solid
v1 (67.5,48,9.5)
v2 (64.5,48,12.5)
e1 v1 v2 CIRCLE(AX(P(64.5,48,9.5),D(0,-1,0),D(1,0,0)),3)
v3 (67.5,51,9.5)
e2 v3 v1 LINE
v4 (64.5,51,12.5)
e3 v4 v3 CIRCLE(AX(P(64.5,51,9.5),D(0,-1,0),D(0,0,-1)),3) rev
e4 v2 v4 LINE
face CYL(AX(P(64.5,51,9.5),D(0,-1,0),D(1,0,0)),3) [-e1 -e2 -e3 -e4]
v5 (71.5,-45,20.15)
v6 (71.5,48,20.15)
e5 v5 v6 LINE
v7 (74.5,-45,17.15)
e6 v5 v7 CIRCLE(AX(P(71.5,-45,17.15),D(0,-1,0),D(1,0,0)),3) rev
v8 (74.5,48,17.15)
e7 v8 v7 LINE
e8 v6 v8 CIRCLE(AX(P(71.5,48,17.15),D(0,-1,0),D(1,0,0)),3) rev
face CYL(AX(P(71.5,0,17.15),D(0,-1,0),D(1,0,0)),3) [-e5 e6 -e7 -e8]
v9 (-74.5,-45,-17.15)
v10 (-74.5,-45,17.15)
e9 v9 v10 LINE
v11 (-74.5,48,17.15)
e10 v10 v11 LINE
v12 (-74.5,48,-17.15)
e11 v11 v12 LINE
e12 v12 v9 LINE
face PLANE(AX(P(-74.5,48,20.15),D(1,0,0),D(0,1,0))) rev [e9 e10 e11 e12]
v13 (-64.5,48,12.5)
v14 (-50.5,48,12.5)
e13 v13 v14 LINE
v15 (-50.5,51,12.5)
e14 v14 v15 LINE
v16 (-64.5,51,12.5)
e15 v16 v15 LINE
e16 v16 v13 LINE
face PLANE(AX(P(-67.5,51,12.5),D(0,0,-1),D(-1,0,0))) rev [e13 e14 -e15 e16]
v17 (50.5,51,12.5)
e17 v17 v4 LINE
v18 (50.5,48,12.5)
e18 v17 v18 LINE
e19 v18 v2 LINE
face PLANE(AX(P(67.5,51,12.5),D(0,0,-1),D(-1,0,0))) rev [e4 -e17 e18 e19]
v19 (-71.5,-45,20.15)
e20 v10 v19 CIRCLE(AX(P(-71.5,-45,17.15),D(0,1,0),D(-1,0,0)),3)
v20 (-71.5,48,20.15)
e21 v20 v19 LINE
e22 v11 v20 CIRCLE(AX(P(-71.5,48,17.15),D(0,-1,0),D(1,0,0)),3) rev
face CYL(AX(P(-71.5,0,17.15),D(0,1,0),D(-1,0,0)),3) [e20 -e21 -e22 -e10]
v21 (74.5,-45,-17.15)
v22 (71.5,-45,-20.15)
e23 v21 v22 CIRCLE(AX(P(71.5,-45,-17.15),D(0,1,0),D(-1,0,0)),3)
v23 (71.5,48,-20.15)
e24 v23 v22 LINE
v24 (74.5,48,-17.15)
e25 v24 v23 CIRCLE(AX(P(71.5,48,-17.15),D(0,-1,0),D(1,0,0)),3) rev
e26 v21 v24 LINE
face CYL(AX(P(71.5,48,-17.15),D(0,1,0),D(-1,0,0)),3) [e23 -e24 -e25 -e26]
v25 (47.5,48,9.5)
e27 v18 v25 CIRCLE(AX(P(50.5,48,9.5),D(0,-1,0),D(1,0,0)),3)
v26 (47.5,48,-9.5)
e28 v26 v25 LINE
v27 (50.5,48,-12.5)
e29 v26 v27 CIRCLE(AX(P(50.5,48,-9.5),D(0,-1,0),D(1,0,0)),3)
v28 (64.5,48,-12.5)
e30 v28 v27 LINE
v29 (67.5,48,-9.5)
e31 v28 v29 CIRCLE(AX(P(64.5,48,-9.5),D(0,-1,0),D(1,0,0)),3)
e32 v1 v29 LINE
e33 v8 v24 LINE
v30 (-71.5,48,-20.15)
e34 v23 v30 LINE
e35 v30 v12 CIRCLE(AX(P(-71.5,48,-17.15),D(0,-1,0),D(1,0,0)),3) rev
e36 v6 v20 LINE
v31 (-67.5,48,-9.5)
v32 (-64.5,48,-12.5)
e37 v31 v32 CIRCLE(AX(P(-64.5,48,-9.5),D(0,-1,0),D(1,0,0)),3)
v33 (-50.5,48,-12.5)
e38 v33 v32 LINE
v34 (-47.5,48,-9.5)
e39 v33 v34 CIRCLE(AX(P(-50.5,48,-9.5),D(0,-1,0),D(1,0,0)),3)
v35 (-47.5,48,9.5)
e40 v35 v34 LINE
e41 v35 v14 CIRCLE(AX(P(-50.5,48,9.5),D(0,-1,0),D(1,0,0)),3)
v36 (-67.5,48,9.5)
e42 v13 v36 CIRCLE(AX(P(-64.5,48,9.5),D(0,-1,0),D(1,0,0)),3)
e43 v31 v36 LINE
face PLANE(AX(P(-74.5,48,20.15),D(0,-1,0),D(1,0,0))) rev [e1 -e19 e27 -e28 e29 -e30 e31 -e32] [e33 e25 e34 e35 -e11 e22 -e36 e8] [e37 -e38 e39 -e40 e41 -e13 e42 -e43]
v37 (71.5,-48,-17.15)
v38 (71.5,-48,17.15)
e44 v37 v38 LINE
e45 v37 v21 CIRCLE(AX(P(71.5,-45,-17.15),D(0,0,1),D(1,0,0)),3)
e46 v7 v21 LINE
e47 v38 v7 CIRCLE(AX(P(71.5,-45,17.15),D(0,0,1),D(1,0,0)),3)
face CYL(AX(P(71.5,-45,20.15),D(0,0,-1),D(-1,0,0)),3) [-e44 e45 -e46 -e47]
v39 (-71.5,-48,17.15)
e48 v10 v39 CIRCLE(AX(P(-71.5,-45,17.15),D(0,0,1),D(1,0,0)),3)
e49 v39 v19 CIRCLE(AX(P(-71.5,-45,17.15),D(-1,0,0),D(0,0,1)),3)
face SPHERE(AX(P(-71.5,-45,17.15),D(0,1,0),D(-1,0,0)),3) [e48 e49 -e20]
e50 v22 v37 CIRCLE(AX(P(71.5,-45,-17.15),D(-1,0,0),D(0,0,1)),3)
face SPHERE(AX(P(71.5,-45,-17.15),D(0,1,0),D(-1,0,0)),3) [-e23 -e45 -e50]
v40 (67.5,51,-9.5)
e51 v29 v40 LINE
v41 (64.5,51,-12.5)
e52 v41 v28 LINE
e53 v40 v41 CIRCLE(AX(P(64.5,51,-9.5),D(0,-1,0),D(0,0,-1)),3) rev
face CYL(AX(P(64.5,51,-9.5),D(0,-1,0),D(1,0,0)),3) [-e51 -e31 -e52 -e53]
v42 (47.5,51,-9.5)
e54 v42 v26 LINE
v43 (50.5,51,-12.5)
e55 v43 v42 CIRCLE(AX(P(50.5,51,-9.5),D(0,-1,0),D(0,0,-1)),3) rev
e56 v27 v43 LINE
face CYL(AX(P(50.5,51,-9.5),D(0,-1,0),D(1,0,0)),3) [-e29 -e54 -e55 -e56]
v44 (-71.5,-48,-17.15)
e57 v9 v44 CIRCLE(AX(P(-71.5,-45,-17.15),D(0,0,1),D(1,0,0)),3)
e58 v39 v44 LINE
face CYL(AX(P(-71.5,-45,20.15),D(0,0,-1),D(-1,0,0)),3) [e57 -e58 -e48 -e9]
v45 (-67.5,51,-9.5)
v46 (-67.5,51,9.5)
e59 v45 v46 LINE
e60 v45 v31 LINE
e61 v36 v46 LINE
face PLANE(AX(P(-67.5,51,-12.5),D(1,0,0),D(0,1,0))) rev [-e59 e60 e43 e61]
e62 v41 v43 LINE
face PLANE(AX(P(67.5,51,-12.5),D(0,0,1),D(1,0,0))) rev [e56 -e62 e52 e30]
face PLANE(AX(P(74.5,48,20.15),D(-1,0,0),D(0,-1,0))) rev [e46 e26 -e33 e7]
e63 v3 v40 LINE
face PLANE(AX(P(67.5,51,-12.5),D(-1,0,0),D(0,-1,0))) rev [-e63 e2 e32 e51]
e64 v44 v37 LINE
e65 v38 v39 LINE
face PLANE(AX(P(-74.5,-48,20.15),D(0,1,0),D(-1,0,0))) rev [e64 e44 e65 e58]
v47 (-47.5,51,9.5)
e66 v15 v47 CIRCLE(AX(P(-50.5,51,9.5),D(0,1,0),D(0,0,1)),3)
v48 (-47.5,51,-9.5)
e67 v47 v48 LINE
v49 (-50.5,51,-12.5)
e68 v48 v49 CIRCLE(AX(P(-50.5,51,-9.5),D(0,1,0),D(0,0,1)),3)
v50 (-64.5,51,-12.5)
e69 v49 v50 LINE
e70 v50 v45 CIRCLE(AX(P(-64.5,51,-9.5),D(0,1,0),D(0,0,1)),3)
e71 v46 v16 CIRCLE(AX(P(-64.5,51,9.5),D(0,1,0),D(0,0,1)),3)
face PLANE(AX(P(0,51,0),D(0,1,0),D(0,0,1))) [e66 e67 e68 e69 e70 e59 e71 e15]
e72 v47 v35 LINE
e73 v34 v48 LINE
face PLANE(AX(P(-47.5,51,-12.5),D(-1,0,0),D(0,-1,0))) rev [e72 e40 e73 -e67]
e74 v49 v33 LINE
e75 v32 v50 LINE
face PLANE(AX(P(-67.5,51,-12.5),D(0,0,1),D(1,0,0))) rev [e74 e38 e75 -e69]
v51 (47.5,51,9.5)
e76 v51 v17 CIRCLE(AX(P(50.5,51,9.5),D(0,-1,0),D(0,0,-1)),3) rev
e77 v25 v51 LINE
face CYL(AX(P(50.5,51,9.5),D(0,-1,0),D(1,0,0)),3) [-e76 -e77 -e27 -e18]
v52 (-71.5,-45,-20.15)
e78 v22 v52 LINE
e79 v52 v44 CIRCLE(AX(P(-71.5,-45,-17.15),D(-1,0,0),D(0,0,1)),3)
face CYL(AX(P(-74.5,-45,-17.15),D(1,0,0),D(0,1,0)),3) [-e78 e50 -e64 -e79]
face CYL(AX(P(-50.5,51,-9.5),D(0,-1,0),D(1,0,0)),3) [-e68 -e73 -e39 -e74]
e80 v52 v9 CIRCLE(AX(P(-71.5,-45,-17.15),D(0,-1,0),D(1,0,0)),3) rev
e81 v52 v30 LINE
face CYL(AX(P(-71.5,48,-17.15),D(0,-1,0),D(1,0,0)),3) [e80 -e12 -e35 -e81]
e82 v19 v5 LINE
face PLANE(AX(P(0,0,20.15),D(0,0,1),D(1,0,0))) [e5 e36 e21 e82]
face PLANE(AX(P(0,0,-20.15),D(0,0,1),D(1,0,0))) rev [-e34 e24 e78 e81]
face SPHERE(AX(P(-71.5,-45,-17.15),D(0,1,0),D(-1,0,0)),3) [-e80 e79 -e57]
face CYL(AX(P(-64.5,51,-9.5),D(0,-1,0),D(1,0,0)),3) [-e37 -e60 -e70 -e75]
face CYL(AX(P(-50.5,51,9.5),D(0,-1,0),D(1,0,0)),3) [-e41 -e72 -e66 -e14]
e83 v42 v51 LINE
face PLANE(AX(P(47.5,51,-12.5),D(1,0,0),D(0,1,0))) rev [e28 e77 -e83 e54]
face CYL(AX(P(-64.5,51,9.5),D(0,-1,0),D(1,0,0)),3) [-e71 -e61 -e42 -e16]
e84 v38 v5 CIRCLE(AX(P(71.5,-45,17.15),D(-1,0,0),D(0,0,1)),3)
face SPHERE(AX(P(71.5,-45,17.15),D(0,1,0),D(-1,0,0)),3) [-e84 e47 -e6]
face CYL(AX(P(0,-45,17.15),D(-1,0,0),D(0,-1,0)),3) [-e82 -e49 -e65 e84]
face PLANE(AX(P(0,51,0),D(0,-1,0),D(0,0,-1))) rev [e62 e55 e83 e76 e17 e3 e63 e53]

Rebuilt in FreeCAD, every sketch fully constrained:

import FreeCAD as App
import Part
import Sketcher
from FreeCAD import Vector


def edges_at(feature, points):
    """Names of the edges that pass closest to the given points."""
    edges = feature.Shape.Edges
    near = lambda p: min(range(len(edges)), key=lambda i: edges[i].distToShape(Part.Vertex(*p))[0])
    return sorted({f"Edge{near(p) + 1}" for p in points})


def add_polygon(sketch, points):
    """Adds a closed chain of lines whose ends are joined by coincident constraints."""
    first, n = sketch.GeometryCount, len(points)
    for a, b in zip(points, points[1:] + points[:1]):
        sketch.addGeometry(Part.LineSegment(App.Vector(*a, 0), App.Vector(*b, 0)), False)
    for i in range(n):
        sketch.addConstraint(Sketcher.Constraint("Coincident", first + i, 2, first + (i + 1) % n, 1))

doc = App.newDocument("Part")
body = doc.addObject("PartDesign::Body", "Body")

# Sketch on XY plane
sketch1 = doc.addObject("Sketcher::SketchObject", "Sketch")
body.addObject(sketch1)
sketch1.AttachmentSupport = (doc.XY_Plane, [""])
sketch1.MapMode = "FlatFace"
add_polygon(sketch1, [(-74, 48), (-74, -48), (74, -48), (74, 48)])  # lines 0-3
sketch1.addConstraint(Sketcher.Constraint("Vertical", 0))
sketch1.addConstraint(Sketcher.Constraint("Horizontal", 1))
sketch1.addConstraint(Sketcher.Constraint("Vertical", 2))
sketch1.addConstraint(Sketcher.Constraint("Horizontal", 3))
sketch1.addConstraint(Sketcher.Constraint("Symmetric", 0, 2, 2, 2, -1, 1))
sketch1.addConstraint(Sketcher.Constraint("DistanceX", 1, 1, 1, 2, 149.0))
sketch1.addConstraint(Sketcher.Constraint("DistanceY", 0, 2, 0, 1, 96.0))
pad1 = doc.addObject("PartDesign::Pad", "Pad")
body.addObject(pad1)
pad1.Profile = sketch1
pad1.Length = 40.3
pad1.Midplane = True

# Sketch on XZ plane
sketch2 = doc.addObject("Sketcher::SketchObject", "Sketch001")
body.addObject(sketch2)
sketch2.AttachmentSupport = (doc.XZ_Plane, [""])
sketch2.MapMode = "FlatFace"
sketch2.AttachmentOffset = App.Placement(Vector(0, 0, -48), App.Rotation())
add_polygon(sketch2, [(-68, -12), (-68, 12), (-48, 12), (-48, -12)])  # lines 0-3
add_polygon(sketch2, [(48, -12), (48, 12), (68, 12), (68, -12)])  # lines 4-7
sketch2.addConstraint(Sketcher.Constraint("Vertical", 0))
sketch2.addConstraint(Sketcher.Constraint("Horizontal", 1))
sketch2.addConstraint(Sketcher.Constraint("Vertical", 2))
sketch2.addConstraint(Sketcher.Constraint("Horizontal", 3))
sketch2.addConstraint(Sketcher.Constraint("Vertical", 4))
sketch2.addConstraint(Sketcher.Constraint("Horizontal", 5))
sketch2.addConstraint(Sketcher.Constraint("Vertical", 6))
sketch2.addConstraint(Sketcher.Constraint("Horizontal", 7))
sketch2.addConstraint(Sketcher.Constraint("Symmetric", 2, 2, 4, 2, -1, 1))
sketch2.addConstraint(Sketcher.Constraint("Symmetric", 0, 2, 6, 2, -1, 1))
sketch2.addConstraint(Sketcher.Constraint("Horizontal", 1, 2, 4, 2))
sketch2.addConstraint(Sketcher.Constraint("DistanceX", 1, 1, 1, 2, 20.0))
sketch2.addConstraint(Sketcher.Constraint("DistanceY", 0, 1, 0, 2, 25.0))
sketch2.addConstraint(Sketcher.Constraint("DistanceX", 1, 2, 4, 2, 95.0))
pad2 = doc.addObject("PartDesign::Pad", "Pad001")
body.addObject(pad2)
pad2.Profile = sketch2
pad2.Length = 6
pad2.Midplane = True
doc.recompute()

fillet = doc.addObject("PartDesign::Fillet", "Fillet")
body.addObject(fillet)
fillet.Base = (pad2, edges_at(pad2, [
    (74.5, 0, 20.15),
    (-74.5, 0, 20.15),
    (74.5, 0, -20.15),
    (-74.5, 0, -20.15),
]))
fillet.Radius = 3
doc.recompute()

fillet2 = doc.addObject("PartDesign::Fillet", "Fillet001")
body.addObject(fillet2)
fillet2.Base = (fillet, edges_at(fillet, [
    (0, -48, 20.15),
    (0, -48, -20.15),
    (74.5, -48, 0),
    (-74.5, -48, 0),
    (73.621, -48, 19.271),
    (73.621, -48, -19.271),
    (-73.621, -48, -19.271),
    (-73.621, -48, 19.271),
]))
fillet2.Radius = 3
doc.recompute()

fillet3 = doc.addObject("PartDesign::Fillet", "Fillet002")
body.addObject(fillet3)
fillet3.Base = (fillet2, edges_at(fillet2, [
    (-67.5, 49.5, -12.5),
    (-67.5, 49.5, 12.5),
    (-47.5, 49.5, 12.5),
    (-47.5, 49.5, -12.5),
    (67.5, 49.5, 12.5),
    (67.5, 49.5, -12.5),
    (47.5, 49.5, -12.5),
    (47.5, 49.5, 12.5),
]))
fillet3.Radius = 3

doc.recompute()
